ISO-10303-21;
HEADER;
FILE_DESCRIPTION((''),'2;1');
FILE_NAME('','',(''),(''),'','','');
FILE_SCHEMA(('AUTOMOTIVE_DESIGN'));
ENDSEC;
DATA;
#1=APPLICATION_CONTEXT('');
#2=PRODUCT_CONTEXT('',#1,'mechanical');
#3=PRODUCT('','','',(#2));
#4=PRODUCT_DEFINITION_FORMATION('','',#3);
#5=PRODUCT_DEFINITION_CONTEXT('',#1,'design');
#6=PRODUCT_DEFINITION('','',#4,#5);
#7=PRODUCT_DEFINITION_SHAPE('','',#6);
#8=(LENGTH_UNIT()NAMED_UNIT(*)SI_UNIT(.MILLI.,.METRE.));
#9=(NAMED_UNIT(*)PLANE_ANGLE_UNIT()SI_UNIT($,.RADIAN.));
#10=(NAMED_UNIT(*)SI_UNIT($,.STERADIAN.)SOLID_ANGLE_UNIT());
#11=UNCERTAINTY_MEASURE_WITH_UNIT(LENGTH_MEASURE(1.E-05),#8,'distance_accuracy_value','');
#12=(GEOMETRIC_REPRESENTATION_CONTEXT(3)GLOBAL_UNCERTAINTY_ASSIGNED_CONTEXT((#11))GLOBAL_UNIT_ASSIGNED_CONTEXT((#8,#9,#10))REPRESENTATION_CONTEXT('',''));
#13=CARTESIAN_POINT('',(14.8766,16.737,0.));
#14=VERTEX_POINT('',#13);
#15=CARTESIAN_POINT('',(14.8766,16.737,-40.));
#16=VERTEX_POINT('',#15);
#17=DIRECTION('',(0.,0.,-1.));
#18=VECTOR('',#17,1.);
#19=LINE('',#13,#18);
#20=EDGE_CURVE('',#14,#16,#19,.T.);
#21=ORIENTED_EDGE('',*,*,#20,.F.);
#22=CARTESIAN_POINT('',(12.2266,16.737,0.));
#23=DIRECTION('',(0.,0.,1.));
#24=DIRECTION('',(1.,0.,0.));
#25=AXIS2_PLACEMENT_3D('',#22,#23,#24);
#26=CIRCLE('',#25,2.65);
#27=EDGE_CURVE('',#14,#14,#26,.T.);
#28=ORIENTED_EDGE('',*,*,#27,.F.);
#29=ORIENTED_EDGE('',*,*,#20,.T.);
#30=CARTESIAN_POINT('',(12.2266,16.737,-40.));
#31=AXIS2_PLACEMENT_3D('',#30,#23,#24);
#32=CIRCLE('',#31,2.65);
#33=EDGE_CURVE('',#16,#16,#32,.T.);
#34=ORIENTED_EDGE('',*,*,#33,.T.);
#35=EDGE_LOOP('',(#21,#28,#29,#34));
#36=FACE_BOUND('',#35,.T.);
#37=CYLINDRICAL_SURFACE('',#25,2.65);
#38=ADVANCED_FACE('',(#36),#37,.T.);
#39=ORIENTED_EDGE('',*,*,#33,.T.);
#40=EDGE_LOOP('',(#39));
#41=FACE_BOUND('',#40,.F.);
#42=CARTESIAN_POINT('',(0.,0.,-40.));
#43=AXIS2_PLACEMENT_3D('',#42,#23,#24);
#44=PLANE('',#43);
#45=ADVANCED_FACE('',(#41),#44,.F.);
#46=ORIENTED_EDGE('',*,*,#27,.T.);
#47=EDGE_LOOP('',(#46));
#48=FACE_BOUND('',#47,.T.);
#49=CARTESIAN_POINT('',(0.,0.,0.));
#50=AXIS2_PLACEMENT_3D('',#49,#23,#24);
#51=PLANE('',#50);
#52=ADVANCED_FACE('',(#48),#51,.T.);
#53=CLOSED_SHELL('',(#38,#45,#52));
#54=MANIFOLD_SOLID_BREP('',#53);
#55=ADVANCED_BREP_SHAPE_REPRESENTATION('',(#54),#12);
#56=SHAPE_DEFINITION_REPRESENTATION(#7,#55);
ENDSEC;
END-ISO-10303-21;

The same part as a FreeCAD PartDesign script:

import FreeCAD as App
import Part
import Sketcher
Q = App.Units.Quantity

doc = App.newDocument("Part")
params = doc.addObject("Spreadsheet::Sheet", "Params")
for row, (alias, value) in enumerate([
    ("sketch1_diameter", "5.3 mm"),
    ("pad1_length", "40 mm"),
], start=1):
    params.set(f"A{row}", alias)
    params.set(f"B{row}", "=" + value)
    params.setAlias(f"B{row}", alias)

body = doc.addObject("PartDesign::Body", "Body")

# Sketch on XY plane
sketch1 = body.newObject("Sketcher::SketchObject", "Sketch")
sketch1.AttachmentSupport = (doc.getObject("XY_Plane"), [""])
sketch1.MapMode = "FlatFace"
sketch1.addGeometry(Part.Circle(App.Vector(12.2, 16.7, 0), App.Vector(0, 0, 1), 2.6), False)
sketch1.addConstraint([
    Sketcher.Constraint("Diameter", 0, Q("5.3 mm")),
    Sketcher.Constraint("DistanceY", -1, 1, 0, 3, Q("16.737 mm")),
    Sketcher.Constraint("DistanceX", -1, 1, 0, 3, Q("12.2266 mm")),
])
sketch1.setExpression("Constraints[0]", "Params.sketch1_diameter")
pad1 = body.newObject("PartDesign::Pad", "Pad")
pad1.Profile = sketch1
pad1.setExpression("Length", "Params.pad1_length")
pad1.Reversed = True

doc.recompute()
